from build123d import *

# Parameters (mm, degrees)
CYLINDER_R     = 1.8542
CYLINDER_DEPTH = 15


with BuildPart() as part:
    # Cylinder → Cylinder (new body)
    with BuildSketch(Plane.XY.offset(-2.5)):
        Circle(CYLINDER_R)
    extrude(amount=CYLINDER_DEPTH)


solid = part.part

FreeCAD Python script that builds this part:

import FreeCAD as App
import Part
import Sketcher

doc = App.newDocument("Part")
body = doc.addObject("PartDesign::Body", "Body")

sketch1 = body.newObject("Sketcher::SketchObject", "Sketch")
sketch1.AttachmentSupport = (doc.getObject("XY_Plane"), [""])
sketch1.MapMode = "FlatFace"
sketch1.AttachmentOffset = App.Placement(App.Vector(0, 0, -2.5), App.Rotation())
sketch1.addGeometry(Part.Circle(App.Vector(0, 0, 0), App.Vector(0, 0, 1), 1.9), False)
sketch1.addConstraint(Sketcher.Constraint("Coincident", 0, 3, -1, 1))
sketch1.addConstraint(Sketcher.Constraint("Diameter", 0, 3.7084))
pad1 = body.newObject("PartDesign::Pad", "Pad")
pad1.Profile = sketch1
pad1.Length = 15

doc.recompute()
